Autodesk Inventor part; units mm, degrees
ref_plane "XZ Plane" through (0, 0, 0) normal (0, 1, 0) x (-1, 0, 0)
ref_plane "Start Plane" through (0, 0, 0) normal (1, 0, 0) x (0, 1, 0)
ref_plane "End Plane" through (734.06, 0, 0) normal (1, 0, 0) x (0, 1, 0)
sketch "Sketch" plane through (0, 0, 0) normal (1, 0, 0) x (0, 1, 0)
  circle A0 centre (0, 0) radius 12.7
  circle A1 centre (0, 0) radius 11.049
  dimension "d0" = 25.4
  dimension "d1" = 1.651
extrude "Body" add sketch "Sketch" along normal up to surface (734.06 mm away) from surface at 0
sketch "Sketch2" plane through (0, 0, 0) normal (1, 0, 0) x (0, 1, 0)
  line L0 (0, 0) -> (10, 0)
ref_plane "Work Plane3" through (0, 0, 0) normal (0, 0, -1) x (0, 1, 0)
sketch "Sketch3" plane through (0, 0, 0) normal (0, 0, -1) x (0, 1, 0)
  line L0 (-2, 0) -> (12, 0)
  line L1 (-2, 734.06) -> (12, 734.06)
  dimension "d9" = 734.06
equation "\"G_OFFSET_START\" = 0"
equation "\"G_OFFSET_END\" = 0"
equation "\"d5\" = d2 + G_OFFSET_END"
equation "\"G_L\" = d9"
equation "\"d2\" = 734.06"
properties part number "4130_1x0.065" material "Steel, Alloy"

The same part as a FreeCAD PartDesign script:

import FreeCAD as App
import Part
import Sketcher

V = App.Vector
Q = App.Units.Quantity

doc = App.newDocument("Part")
body = doc.addObject("PartDesign::Body", "Body")

# Sketch on YZ plane
sketch1 = body.newObject("Sketcher::SketchObject", "Sketch")
sketch1.AttachmentSupport = (doc.getObject("YZ_Plane"), [""])
sketch1.MapMode = "FlatFace"
sketch1.addGeometry([
    Part.Circle(V(0, 0, 0), V(0, 0, 1), 13),
    Part.Circle(V(0, 0, 0), V(0, 0, 1), 11),
], False)
sketch1.addConstraint([
    Sketcher.Constraint("Coincident", 0, 3, -1, 1),
    Sketcher.Constraint("Coincident", 1, 3, -1, 1),
    Sketcher.Constraint("Diameter", 0, Q("1 in")),
    Sketcher.Constraint("Diameter", 1, Q("0.87 in")),
])
pad1 = body.newObject("PartDesign::Pad", "Pad")
pad1.Profile = sketch1
pad1.Length = Q("28.9 in")

doc.recompute()
